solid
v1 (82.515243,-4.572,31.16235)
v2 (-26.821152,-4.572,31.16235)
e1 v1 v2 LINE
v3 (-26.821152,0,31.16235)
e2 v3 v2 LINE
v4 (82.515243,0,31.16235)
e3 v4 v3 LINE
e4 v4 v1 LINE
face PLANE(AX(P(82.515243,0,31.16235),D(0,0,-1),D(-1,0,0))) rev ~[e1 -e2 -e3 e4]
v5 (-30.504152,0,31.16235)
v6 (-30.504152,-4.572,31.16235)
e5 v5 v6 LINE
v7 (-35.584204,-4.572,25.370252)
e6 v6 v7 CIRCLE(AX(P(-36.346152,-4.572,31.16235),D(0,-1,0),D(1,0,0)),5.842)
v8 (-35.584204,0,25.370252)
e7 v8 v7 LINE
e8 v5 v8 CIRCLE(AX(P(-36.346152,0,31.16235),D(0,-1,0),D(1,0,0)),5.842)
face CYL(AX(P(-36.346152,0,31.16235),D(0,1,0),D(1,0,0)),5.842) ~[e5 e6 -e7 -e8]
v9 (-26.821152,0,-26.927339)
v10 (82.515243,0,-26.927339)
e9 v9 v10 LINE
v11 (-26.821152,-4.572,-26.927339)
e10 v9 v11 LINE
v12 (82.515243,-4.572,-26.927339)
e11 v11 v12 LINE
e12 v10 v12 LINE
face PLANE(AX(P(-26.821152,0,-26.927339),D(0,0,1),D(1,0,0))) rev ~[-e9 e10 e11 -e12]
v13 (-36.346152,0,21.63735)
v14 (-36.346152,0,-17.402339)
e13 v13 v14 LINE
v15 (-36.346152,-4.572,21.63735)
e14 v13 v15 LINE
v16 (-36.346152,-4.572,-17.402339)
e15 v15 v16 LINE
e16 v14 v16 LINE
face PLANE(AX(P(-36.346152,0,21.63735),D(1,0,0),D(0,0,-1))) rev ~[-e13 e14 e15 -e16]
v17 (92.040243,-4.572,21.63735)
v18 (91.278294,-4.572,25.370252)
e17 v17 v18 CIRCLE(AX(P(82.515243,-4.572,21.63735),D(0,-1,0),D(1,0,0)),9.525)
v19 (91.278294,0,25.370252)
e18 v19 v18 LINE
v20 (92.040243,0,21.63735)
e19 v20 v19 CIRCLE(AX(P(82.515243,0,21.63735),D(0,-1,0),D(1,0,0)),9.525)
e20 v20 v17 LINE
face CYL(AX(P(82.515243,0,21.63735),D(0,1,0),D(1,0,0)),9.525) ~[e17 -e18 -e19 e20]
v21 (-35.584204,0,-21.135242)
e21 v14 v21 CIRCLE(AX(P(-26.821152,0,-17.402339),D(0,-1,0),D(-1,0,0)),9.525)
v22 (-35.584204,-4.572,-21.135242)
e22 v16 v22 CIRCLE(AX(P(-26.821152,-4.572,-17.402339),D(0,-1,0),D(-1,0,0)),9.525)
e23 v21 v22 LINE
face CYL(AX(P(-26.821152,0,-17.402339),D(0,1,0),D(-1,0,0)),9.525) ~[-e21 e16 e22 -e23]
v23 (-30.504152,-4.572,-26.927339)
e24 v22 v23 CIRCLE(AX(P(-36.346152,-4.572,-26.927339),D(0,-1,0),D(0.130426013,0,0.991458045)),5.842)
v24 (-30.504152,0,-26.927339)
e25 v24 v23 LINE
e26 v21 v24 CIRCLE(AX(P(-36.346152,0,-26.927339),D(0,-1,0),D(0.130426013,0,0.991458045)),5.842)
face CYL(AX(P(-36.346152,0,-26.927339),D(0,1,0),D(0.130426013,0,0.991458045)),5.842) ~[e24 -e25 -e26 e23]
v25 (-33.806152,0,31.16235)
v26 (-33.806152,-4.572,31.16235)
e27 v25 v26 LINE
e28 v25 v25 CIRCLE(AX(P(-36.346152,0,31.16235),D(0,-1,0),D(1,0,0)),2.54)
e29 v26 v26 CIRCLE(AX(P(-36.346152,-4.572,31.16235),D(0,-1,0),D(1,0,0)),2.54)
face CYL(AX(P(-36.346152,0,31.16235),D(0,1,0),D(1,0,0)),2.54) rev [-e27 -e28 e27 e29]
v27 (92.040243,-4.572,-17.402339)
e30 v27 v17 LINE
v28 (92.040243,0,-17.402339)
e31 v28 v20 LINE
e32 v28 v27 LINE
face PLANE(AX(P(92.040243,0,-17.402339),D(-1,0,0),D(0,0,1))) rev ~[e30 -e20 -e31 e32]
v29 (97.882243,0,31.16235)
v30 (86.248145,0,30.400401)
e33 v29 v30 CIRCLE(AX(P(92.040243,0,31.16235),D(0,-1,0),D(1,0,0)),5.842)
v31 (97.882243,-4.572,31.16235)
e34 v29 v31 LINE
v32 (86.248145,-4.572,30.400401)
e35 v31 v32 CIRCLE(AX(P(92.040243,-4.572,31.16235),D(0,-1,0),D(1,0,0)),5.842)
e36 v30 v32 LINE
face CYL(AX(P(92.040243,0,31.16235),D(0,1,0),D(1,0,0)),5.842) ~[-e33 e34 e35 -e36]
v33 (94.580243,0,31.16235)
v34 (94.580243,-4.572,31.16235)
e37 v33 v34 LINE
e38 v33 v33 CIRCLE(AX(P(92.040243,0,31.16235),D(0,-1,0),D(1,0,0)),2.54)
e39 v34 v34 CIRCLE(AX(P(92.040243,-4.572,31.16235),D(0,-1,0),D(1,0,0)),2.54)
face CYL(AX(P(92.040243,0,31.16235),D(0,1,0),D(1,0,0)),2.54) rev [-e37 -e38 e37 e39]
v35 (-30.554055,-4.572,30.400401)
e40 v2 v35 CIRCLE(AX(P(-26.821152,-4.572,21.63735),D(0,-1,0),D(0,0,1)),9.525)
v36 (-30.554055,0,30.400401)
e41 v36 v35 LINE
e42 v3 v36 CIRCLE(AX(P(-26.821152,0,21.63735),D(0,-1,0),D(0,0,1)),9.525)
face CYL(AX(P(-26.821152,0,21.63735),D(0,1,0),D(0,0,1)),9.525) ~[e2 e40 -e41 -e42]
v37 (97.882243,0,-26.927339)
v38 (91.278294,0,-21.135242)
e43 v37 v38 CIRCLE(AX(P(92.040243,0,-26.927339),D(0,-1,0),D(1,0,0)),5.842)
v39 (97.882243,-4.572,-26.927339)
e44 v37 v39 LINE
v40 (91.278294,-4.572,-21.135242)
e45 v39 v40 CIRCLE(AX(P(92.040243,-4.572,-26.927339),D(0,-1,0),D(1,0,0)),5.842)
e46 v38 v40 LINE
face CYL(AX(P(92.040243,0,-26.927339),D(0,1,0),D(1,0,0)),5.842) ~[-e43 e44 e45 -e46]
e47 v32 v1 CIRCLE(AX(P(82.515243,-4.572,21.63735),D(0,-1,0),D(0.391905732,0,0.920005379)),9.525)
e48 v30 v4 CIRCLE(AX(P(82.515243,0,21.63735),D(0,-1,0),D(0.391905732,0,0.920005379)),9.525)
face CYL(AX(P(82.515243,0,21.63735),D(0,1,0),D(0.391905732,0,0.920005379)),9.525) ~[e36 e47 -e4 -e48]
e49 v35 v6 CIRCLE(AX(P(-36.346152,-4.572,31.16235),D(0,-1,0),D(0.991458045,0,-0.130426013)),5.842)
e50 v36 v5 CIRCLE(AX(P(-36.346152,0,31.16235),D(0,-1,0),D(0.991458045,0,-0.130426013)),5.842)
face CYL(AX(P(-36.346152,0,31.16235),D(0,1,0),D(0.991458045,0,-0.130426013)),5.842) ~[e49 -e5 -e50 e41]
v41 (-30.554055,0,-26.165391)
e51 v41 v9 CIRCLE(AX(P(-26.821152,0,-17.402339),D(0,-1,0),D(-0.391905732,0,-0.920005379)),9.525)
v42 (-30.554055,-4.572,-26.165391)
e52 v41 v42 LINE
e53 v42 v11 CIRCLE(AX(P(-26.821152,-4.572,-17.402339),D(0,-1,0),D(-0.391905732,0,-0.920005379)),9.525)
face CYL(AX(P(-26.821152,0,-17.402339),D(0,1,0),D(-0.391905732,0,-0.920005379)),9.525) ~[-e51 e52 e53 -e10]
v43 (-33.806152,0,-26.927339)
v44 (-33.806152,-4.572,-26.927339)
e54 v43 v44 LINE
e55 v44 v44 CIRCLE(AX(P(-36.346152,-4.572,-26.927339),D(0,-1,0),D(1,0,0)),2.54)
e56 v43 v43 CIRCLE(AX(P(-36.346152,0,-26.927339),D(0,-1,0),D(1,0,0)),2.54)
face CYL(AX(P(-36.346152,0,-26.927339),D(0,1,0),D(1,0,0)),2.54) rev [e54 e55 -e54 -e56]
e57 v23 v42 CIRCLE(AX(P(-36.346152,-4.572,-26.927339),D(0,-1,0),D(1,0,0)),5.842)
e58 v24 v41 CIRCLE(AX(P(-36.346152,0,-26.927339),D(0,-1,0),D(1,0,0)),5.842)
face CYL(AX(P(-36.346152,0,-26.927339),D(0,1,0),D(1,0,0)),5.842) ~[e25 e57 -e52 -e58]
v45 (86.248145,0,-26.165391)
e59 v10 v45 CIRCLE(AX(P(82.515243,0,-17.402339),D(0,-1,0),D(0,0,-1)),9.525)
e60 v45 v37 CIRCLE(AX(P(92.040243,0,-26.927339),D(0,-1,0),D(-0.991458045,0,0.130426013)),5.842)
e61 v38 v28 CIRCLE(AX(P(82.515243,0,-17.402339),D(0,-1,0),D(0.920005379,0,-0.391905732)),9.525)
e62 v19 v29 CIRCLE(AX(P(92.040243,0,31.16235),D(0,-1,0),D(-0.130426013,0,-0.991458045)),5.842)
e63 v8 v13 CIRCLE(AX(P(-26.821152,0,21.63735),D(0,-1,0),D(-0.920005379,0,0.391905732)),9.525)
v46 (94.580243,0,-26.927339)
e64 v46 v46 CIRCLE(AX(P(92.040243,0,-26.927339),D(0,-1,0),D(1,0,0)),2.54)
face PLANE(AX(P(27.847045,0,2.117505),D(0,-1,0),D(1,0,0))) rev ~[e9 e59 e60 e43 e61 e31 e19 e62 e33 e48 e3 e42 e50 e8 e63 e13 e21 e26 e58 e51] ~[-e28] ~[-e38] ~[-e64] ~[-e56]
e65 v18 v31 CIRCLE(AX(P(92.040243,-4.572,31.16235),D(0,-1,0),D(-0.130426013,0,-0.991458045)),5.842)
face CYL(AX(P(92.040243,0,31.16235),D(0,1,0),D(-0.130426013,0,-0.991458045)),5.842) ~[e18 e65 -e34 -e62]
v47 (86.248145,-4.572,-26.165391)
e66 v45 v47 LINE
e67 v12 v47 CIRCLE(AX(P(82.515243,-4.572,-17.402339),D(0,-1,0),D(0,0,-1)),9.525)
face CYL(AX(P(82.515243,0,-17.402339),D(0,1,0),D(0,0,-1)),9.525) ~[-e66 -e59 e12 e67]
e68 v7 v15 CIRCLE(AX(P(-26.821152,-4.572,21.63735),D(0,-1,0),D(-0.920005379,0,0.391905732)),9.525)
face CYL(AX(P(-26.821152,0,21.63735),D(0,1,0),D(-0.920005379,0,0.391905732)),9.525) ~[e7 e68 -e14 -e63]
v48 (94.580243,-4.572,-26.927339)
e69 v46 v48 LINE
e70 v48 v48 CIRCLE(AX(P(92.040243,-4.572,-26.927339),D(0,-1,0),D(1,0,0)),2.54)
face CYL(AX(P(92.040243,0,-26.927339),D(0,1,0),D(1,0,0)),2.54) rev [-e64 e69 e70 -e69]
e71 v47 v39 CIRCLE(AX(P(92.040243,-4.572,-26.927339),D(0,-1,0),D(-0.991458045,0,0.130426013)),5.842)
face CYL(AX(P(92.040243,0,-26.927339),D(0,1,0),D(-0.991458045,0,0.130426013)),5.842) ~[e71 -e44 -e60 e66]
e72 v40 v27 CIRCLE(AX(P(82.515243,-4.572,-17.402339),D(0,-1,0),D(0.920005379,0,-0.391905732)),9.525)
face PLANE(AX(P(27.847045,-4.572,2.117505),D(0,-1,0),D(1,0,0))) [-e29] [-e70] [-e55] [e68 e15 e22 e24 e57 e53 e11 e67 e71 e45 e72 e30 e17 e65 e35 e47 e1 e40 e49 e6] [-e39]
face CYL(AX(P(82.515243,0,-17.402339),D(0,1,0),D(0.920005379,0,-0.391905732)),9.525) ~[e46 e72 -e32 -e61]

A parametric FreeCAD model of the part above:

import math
import FreeCAD as App
import Part
import Sketcher

V = App.Vector
Q = App.Units.Quantity

doc = App.newDocument("Part")
body = doc.addObject("PartDesign::Body", "Body")

sketch1 = body.newObject("Sketcher::SketchObject", "Sketch")
sketch1.AttachmentSupport = (doc.getObject("XZ_Plane"), [""])
sketch1.MapMode = "FlatFace"
sketch1.addGeometry([
    Part.ArcOfCircle(Part.Circle(V(-26.8, 21.6, 0), V(0, 0, 1), 9.5), math.radians(157), math.radians(180)),
    Part.LineSegment(V(-36.3, 21.6, 0), V(-36.3, -17.4, 0)),
    Part.ArcOfCircle(Part.Circle(V(-26.8, -17.4, 0), V(0, 0, 1), 9.5), math.radians(180), math.radians(203)),
    Part.ArcOfCircle(Part.Circle(V(-36.3, -26.9, 0), V(0, 0, 1), 5.8), math.radians(83), math.radians(360)),
    Part.ArcOfCircle(Part.Circle(V(-36.3, -26.9, 0), V(0, 0, 1), 5.8), math.radians(0), math.radians(7.49)),
    Part.ArcOfCircle(Part.Circle(V(-26.8, -17.4, 0), V(0, 0, 1), 9.5), math.radians(-113), math.radians(-90)),
    Part.LineSegment(V(-26.8, -26.9, 0), V(82.5, -26.9, 0)),
    Part.ArcOfCircle(Part.Circle(V(82.5, -17.4, 0), V(0, 0, 1), 9.5), math.radians(-90), math.radians(-67)),
    Part.ArcOfCircle(Part.Circle(V(92, -26.9, 0), V(0, 0, 1), 5.8), math.radians(173), math.radians(360)),
    Part.ArcOfCircle(Part.Circle(V(92, -26.9, 0), V(0, 0, 1), 5.8), math.radians(0), math.radians(97)),
    Part.ArcOfCircle(Part.Circle(V(82.5, -17.4, 0), V(0, 0, 1), 9.5), math.radians(-23), math.radians(0)),
    Part.LineSegment(V(92, -17.4, 0), V(92, 21.6, 0)),
    Part.ArcOfCircle(Part.Circle(V(82.5, 21.6, 0), V(0, 0, 1), 9.5), math.radians(0), math.radians(23)),
    Part.ArcOfCircle(Part.Circle(V(92, 31.2, 0), V(0, 0, 1), 5.8), math.radians(-97), math.radians(0)),
    Part.ArcOfCircle(Part.Circle(V(92, 31.2, 0), V(0, 0, 1), 5.8), math.radians(0), math.radians(187)),
    Part.ArcOfCircle(Part.Circle(V(82.5, 21.6, 0), V(0, 0, 1), 9.5), math.radians(67), math.radians(90)),
    Part.LineSegment(V(82.5, 31.2, 0), V(-26.8, 31.2, 0)),
    Part.ArcOfCircle(Part.Circle(V(-26.8, 21.6, 0), V(0, 0, 1), 9.5), math.radians(90), math.radians(113)),
    Part.ArcOfCircle(Part.Circle(V(-36.3, 31.2, 0), V(0, 0, 1), 5.8), math.radians(-7.49), math.radians(0)),
    Part.ArcOfCircle(Part.Circle(V(-36.3, 31.2, 0), V(0, 0, 1), 5.8), math.radians(0), math.radians(277)),
    Part.Circle(V(-36.3, -26.9, 0), V(0, 0, 1), 2.5),
    Part.Circle(V(-36.3, 31.2, 0), V(0, 0, 1), 2.5),
    Part.Circle(V(92, 31.2, 0), V(0, 0, 1), 2.5),
    Part.Circle(V(92, -26.9, 0), V(0, 0, 1), 2.5),
], False)
sketch1.addConstraint([
    Sketcher.Constraint("Tangent", 0, 2, 1, 1),
    Sketcher.Constraint("Tangent", 1, 2, 2, 1),
    Sketcher.Constraint("Coincident", 2, 2, 3, 1),
    Sketcher.Constraint("Tangent", 3, 2, 4, 1),
    Sketcher.Constraint("Coincident", 4, 2, 5, 1),
    Sketcher.Constraint("Tangent", 5, 2, 6, 1),
    Sketcher.Constraint("Tangent", 6, 2, 7, 1),
    Sketcher.Constraint("Coincident", 7, 2, 8, 1),
    Sketcher.Constraint("Tangent", 8, 2, 9, 1),
    Sketcher.Constraint("Coincident", 9, 2, 10, 1),
    Sketcher.Constraint("Tangent", 10, 2, 11, 1),
    Sketcher.Constraint("Tangent", 11, 2, 12, 1),
    Sketcher.Constraint("Coincident", 12, 2, 13, 1),
    Sketcher.Constraint("Tangent", 13, 2, 14, 1),
    Sketcher.Constraint("Coincident", 14, 2, 15, 1),
    Sketcher.Constraint("Tangent", 15, 2, 16, 1),
    Sketcher.Constraint("Tangent", 16, 2, 17, 1),
    Sketcher.Constraint("Coincident", 17, 2, 18, 1),
    Sketcher.Constraint("Tangent", 18, 2, 19, 1),
    Sketcher.Constraint("Coincident", 19, 2, 0, 1),
    Sketcher.Constraint("Vertical", 1),
    Sketcher.Constraint("Horizontal", 6),
    Sketcher.Constraint("Vertical", 11),
    Sketcher.Constraint("Horizontal", 16),
    Sketcher.Constraint("Coincident", 5, 3, 2, 3),
    Sketcher.Constraint("Coincident", 10, 3, 7, 3),
    Sketcher.Constraint("Coincident", 15, 3, 12, 3),
    Sketcher.Constraint("Coincident", 17, 3, 0, 3),
    Sketcher.Constraint("Coincident", 20, 3, 3, 3),
    Sketcher.Constraint("Coincident", 21, 3, 18, 3),
    Sketcher.Constraint("Coincident", 22, 3, 13, 3),
    Sketcher.Constraint("Coincident", 23, 3, 8, 3),
    Sketcher.Constraint("Equal", 0, 2),
    Sketcher.Constraint("Equal", 3, 4),
    Sketcher.Constraint("Equal", 2, 5),
    Sketcher.Constraint("Equal", 5, 7),
    Sketcher.Constraint("Equal", 4, 8),
    Sketcher.Constraint("Equal", 8, 9),
    Sketcher.Constraint("Equal", 7, 10),
    Sketcher.Constraint("Equal", 10, 12),
    Sketcher.Constraint("Equal", 9, 13),
    Sketcher.Constraint("Equal", 13, 14),
    Sketcher.Constraint("Equal", 12, 15),
    Sketcher.Constraint("Equal", 15, 17),
    Sketcher.Constraint("Equal", 14, 18),
    Sketcher.Constraint("Equal", 18, 19),
    Sketcher.Constraint("Equal", 20, 21),
    Sketcher.Constraint("Equal", 21, 22),
    Sketcher.Constraint("Equal", 22, 23),
    Sketcher.Constraint("Horizontal", 4, 3, 8, 3),
    Sketcher.Constraint("Horizontal", 14, 3, 18, 3),
    Sketcher.Constraint("Horizontal", 23, 3, 3, 2),
    Sketcher.Constraint("Horizontal", 3, 2, 5, 2),
    Sketcher.Constraint("Horizontal", 4, 2, 7, 2),
    Sketcher.Constraint("Horizontal", 6, 2, 8, 2),
    Sketcher.Constraint("Horizontal", 22, 3, 13, 2),
    Sketcher.Constraint("Horizontal", 13, 2, 15, 2),
    Sketcher.Constraint("Horizontal", 14, 2, 17, 2),
    Sketcher.Constraint("Horizontal", 16, 2, 18, 2),
    Sketcher.Constraint("Vertical", 9, 3, 13, 3),
    Sketcher.Constraint("Vertical", 21, 3, 0, 2),
    Sketcher.Constraint("Diameter", 20, Q("0.2 in")),
    Sketcher.Constraint("Radius", 3, Q("0.23 in")),
    Sketcher.Constraint("Radius", 0, Q("0.375 in")),
    Sketcher.Constraint("DistanceY", 1, 2, 1, 1, Q("39.039689 mm")),
    Sketcher.Constraint("DistanceY", -1, 1, 14, 2, Q("30.400401 mm")),
    Sketcher.Constraint("DistanceX", 6, 1, 6, 2, Q("109.336395 mm")),
    Sketcher.Constraint("DistanceX", 0, 3, -1, 1, Q("26.821152 mm")),
])
pad1 = body.newObject("PartDesign::Pad", "Pad")
pad1.Profile = sketch1
pad1.Length = Q("0.18 in")

doc.recompute()
